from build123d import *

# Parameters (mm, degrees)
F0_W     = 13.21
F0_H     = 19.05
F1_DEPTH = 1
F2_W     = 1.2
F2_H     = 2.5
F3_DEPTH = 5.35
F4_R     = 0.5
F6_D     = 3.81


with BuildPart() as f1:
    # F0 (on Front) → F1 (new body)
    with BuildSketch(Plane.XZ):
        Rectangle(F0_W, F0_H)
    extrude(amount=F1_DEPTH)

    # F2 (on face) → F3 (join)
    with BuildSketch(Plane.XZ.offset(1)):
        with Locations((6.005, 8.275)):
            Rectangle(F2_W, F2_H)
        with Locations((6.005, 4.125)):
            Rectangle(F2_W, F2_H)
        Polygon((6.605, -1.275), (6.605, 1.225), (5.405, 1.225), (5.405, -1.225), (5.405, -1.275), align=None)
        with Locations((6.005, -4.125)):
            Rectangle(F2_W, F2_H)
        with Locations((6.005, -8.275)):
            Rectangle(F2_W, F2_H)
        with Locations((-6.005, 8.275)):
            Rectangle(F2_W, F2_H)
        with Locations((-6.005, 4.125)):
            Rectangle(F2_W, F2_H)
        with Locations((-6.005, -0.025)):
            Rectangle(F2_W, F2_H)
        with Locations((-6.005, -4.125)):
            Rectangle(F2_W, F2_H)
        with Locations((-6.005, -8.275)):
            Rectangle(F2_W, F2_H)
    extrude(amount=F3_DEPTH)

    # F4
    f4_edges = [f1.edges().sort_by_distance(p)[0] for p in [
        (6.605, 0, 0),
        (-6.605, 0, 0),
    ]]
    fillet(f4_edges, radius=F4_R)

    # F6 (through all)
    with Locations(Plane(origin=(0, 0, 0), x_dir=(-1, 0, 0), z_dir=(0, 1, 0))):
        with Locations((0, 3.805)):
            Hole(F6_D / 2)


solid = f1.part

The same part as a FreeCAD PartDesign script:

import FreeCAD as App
import Part
import Sketcher

V = App.Vector


def edges_at(feature, points):
    """Names of the edges that pass closest to the given points."""
    edges = feature.Shape.Edges
    near = lambda p: min(range(len(edges)), key=lambda i: edges[i].distToShape(Part.Vertex(*p))[0])
    return sorted({f"Edge{near(p) + 1}" for p in points})

doc = App.newDocument("Part")
body = doc.addObject("PartDesign::Body", "Body")

# Sketch on XZ plane
sketch1 = doc.addObject("Sketcher::SketchObject", "Sketch")
body.addObject(sketch1)
sketch1.AttachmentSupport = (doc.XZ_Plane, [""])
sketch1.MapMode = "FlatFace"
sketch1.addGeometry(Part.LineSegment(V(-7, 10, 0), V(-7, -10, 0)), False)
sketch1.addGeometry(Part.LineSegment(V(-7, -10, 0), V(7, -10, 0)), False)
sketch1.addGeometry(Part.LineSegment(V(7, -10, 0), V(7, 10, 0)), False)
sketch1.addGeometry(Part.LineSegment(V(7, 10, 0), V(-7, 10, 0)), False)
sketch1.addConstraint(Sketcher.Constraint("Coincident", 0, 2, 1, 1))
sketch1.addConstraint(Sketcher.Constraint("Coincident", 1, 2, 2, 1))
sketch1.addConstraint(Sketcher.Constraint("Coincident", 2, 2, 3, 1))
sketch1.addConstraint(Sketcher.Constraint("Coincident", 3, 2, 0, 1))
sketch1.addConstraint(Sketcher.Constraint("Vertical", 0))
sketch1.addConstraint(Sketcher.Constraint("Horizontal", 1))
sketch1.addConstraint(Sketcher.Constraint("Vertical", 2))
sketch1.addConstraint(Sketcher.Constraint("Horizontal", 3))
sketch1.addConstraint(Sketcher.Constraint("Symmetric", 0, 2, 2, 2, -1, 1))
sketch1.addConstraint(Sketcher.Constraint("DistanceX", 1, 1, 1, 2, 13.21))
sketch1.addConstraint(Sketcher.Constraint("DistanceY", 0, 2, 0, 1, 19.05))
pad1 = doc.addObject("PartDesign::Pad", "Pad")
body.addObject(pad1)
pad1.Profile = sketch1
pad1.Length = 1

# Sketch on XZ plane
sketch2 = doc.addObject("Sketcher::SketchObject", "Sketch001")
body.addObject(sketch2)
sketch2.AttachmentSupport = (doc.XZ_Plane, [""])
sketch2.MapMode = "FlatFace"
sketch2.AttachmentOffset = App.Placement(V(0, 0, 1), App.Rotation())
sketch2.addGeometry(Part.LineSegment(V(5.4, 9.5, 0), V(5.4, 7, 0)), False)
sketch2.addGeometry(Part.LineSegment(V(5.4, 7, 0), V(6.6, 7, 0)), False)
sketch2.addGeometry(Part.LineSegment(V(6.6, 7, 0), V(6.6, 9.5, 0)), False)
sketch2.addGeometry(Part.LineSegment(V(6.6, 9.5, 0), V(5.4, 9.5, 0)), False)
sketch2.addGeometry(Part.LineSegment(V(5.4, 5.4, 0), V(5.4, 2.9, 0)), False)
sketch2.addGeometry(Part.LineSegment(V(5.4, 2.9, 0), V(6.6, 2.9, 0)), False)
sketch2.addGeometry(Part.LineSegment(V(6.6, 2.9, 0), V(6.6, 5.4, 0)), False)
sketch2.addGeometry(Part.LineSegment(V(6.6, 5.4, 0), V(5.4, 5.4, 0)), False)
sketch2.addGeometry(Part.LineSegment(V(6.6, -1.3, 0), V(6.6, 1.2, 0)), False)
sketch2.addGeometry(Part.LineSegment(V(6.6, 1.2, 0), V(5.4, 1.2, 0)), False)
sketch2.addGeometry(Part.LineSegment(V(5.4, 1.2, 0), V(5.4, -1.3, 0)), False)
sketch2.addGeometry(Part.LineSegment(V(5.4, -1.3, 0), V(6.6, -1.3, 0)), False)
sketch2.addGeometry(Part.LineSegment(V(5.4, -2.9, 0), V(5.4, -5.4, 0)), False)
sketch2.addGeometry(Part.LineSegment(V(5.4, -5.4, 0), V(6.6, -5.4, 0)), False)
sketch2.addGeometry(Part.LineSegment(V(6.6, -5.4, 0), V(6.6, -2.9, 0)), False)
sketch2.addGeometry(Part.LineSegment(V(6.6, -2.9, 0), V(5.4, -2.9, 0)), False)
sketch2.addGeometry(Part.LineSegment(V(5.4, -7, 0), V(5.4, -9.5, 0)), False)
sketch2.addGeometry(Part.LineSegment(V(5.4, -9.5, 0), V(6.6, -9.5, 0)), False)
sketch2.addGeometry(Part.LineSegment(V(6.6, -9.5, 0), V(6.6, -7, 0)), False)
sketch2.addGeometry(Part.LineSegment(V(6.6, -7, 0), V(5.4, -7, 0)), False)
sketch2.addGeometry(Part.LineSegment(V(-6.6, 9.5, 0), V(-6.6, 7, 0)), False)
sketch2.addGeometry(Part.LineSegment(V(-6.6, 7, 0), V(-5.4, 7, 0)), False)
sketch2.addGeometry(Part.LineSegment(V(-5.4, 7, 0), V(-5.4, 9.5, 0)), False)
sketch2.addGeometry(Part.LineSegment(V(-5.4, 9.5, 0), V(-6.6, 9.5, 0)), False)
sketch2.addGeometry(Part.LineSegment(V(-6.6, 5.4, 0), V(-6.6, 2.9, 0)), False)
sketch2.addGeometry(Part.LineSegment(V(-6.6, 2.9, 0), V(-5.4, 2.9, 0)), False)
sketch2.addGeometry(Part.LineSegment(V(-5.4, 2.9, 0), V(-5.4, 5.4, 0)), False)
sketch2.addGeometry(Part.LineSegment(V(-5.4, 5.4, 0), V(-6.6, 5.4, 0)), False)
sketch2.addGeometry(Part.LineSegment(V(-6.6, 1.2, 0), V(-6.6, -1.3, 0)), False)
sketch2.addGeometry(Part.LineSegment(V(-6.6, -1.3, 0), V(-5.4, -1.3, 0)), False)
sketch2.addGeometry(Part.LineSegment(V(-5.4, -1.3, 0), V(-5.4, 1.2, 0)), False)
sketch2.addGeometry(Part.LineSegment(V(-5.4, 1.2, 0), V(-6.6, 1.2, 0)), False)
sketch2.addGeometry(Part.LineSegment(V(-6.6, -2.9, 0), V(-6.6, -5.4, 0)), False)
sketch2.addGeometry(Part.LineSegment(V(-6.6, -5.4, 0), V(-5.4, -5.4, 0)), False)
sketch2.addGeometry(Part.LineSegment(V(-5.4, -5.4, 0), V(-5.4, -2.9, 0)), False)
sketch2.addGeometry(Part.LineSegment(V(-5.4, -2.9, 0), V(-6.6, -2.9, 0)), False)
sketch2.addGeometry(Part.LineSegment(V(-6.6, -7, 0), V(-6.6, -9.5, 0)), False)
sketch2.addGeometry(Part.LineSegment(V(-6.6, -9.5, 0), V(-5.4, -9.5, 0)), False)
sketch2.addGeometry(Part.LineSegment(V(-5.4, -9.5, 0), V(-5.4, -7, 0)), False)
sketch2.addGeometry(Part.LineSegment(V(-5.4, -7, 0), V(-6.6, -7, 0)), False)
sketch2.addConstraint(Sketcher.Constraint("Coincident", 0, 2, 1, 1))
sketch2.addConstraint(Sketcher.Constraint("Coincident", 1, 2, 2, 1))
sketch2.addConstraint(Sketcher.Constraint("Coincident", 2, 2, 3, 1))
sketch2.addConstraint(Sketcher.Constraint("Coincident", 3, 2, 0, 1))
sketch2.addConstraint(Sketcher.Constraint("Coincident", 4, 2, 5, 1))
sketch2.addConstraint(Sketcher.Constraint("Coincident", 5, 2, 6, 1))
sketch2.addConstraint(Sketcher.Constraint("Coincident", 6, 2, 7, 1))
sketch2.addConstraint(Sketcher.Constraint("Coincident", 7, 2, 4, 1))
sketch2.addConstraint(Sketcher.Constraint("Coincident", 8, 2, 9, 1))
sketch2.addConstraint(Sketcher.Constraint("Coincident", 9, 2, 10, 1))
sketch2.addConstraint(Sketcher.Constraint("Coincident", 10, 2, 11, 1))
sketch2.addConstraint(Sketcher.Constraint("Coincident", 11, 2, 8, 1))
sketch2.addConstraint(Sketcher.Constraint("Coincident", 12, 2, 13, 1))
sketch2.addConstraint(Sketcher.Constraint("Coincident", 13, 2, 14, 1))
sketch2.addConstraint(Sketcher.Constraint("Coincident", 14, 2, 15, 1))
sketch2.addConstraint(Sketcher.Constraint("Coincident", 15, 2, 12, 1))
sketch2.addConstraint(Sketcher.Constraint("Coincident", 16, 2, 17, 1))
sketch2.addConstraint(Sketcher.Constraint("Coincident", 17, 2, 18, 1))
sketch2.addConstraint(Sketcher.Constraint("Coincident", 18, 2, 19, 1))
sketch2.addConstraint(Sketcher.Constraint("Coincident", 19, 2, 16, 1))
sketch2.addConstraint(Sketcher.Constraint("Coincident", 20, 2, 21, 1))
sketch2.addConstraint(Sketcher.Constraint("Coincident", 21, 2, 22, 1))
sketch2.addConstraint(Sketcher.Constraint("Coincident", 22, 2, 23, 1))
sketch2.addConstraint(Sketcher.Constraint("Coincident", 23, 2, 20, 1))
sketch2.addConstraint(Sketcher.Constraint("Coincident", 24, 2, 25, 1))
sketch2.addConstraint(Sketcher.Constraint("Coincident", 25, 2, 26, 1))
sketch2.addConstraint(Sketcher.Constraint("Coincident", 26, 2, 27, 1))
sketch2.addConstraint(Sketcher.Constraint("Coincident", 27, 2, 24, 1))
sketch2.addConstraint(Sketcher.Constraint("Coincident", 28, 2, 29, 1))
sketch2.addConstraint(Sketcher.Constraint("Coincident", 29, 2, 30, 1))
sketch2.addConstraint(Sketcher.Constraint("Coincident", 30, 2, 31, 1))
sketch2.addConstraint(Sketcher.Constraint("Coincident", 31, 2, 28, 1))
sketch2.addConstraint(Sketcher.Constraint("Coincident", 32, 2, 33, 1))
sketch2.addConstraint(Sketcher.Constraint("Coincident", 33, 2, 34, 1))
sketch2.addConstraint(Sketcher.Constraint("Coincident", 34, 2, 35, 1))
sketch2.addConstraint(Sketcher.Constraint("Coincident", 35, 2, 32, 1))
sketch2.addConstraint(Sketcher.Constraint("Coincident", 36, 2, 37, 1))
sketch2.addConstraint(Sketcher.Constraint("Coincident", 37, 2, 38, 1))
sketch2.addConstraint(Sketcher.Constraint("Coincident", 38, 2, 39, 1))
sketch2.addConstraint(Sketcher.Constraint("Coincident", 39, 2, 36, 1))
sketch2.addConstraint(Sketcher.Constraint("Vertical", 0))
sketch2.addConstraint(Sketcher.Constraint("Horizontal", 1))
sketch2.addConstraint(Sketcher.Constraint("Vertical", 2))
sketch2.addConstraint(Sketcher.Constraint("Horizontal", 3))
sketch2.addConstraint(Sketcher.Constraint("Vertical", 4))
sketch2.addConstraint(Sketcher.Constraint("Horizontal", 5))
sketch2.addConstraint(Sketcher.Constraint("Vertical", 6))
sketch2.addConstraint(Sketcher.Constraint("Horizontal", 7))
sketch2.addConstraint(Sketcher.Constraint("Vertical", 8))
sketch2.addConstraint(Sketcher.Constraint("Horizontal", 9))
sketch2.addConstraint(Sketcher.Constraint("Vertical", 10))
sketch2.addConstraint(Sketcher.Constraint("Horizontal", 11))
sketch2.addConstraint(Sketcher.Constraint("Vertical", 12))
sketch2.addConstraint(Sketcher.Constraint("Horizontal", 13))
sketch2.addConstraint(Sketcher.Constraint("Vertical", 14))
sketch2.addConstraint(Sketcher.Constraint("Horizontal", 15))
sketch2.addConstraint(Sketcher.Constraint("Vertical", 16))
sketch2.addConstraint(Sketcher.Constraint("Horizontal", 17))
sketch2.addConstraint(Sketcher.Constraint("Vertical", 18))
sketch2.addConstraint(Sketcher.Constraint("Horizontal", 19))
sketch2.addConstraint(Sketcher.Constraint("Vertical", 20))
sketch2.addConstraint(Sketcher.Constraint("Horizontal", 21))
sketch2.addConstraint(Sketcher.Constraint("Vertical", 22))
sketch2.addConstraint(Sketcher.Constraint("Horizontal", 23))
sketch2.addConstraint(Sketcher.Constraint("Vertical", 24))
sketch2.addConstraint(Sketcher.Constraint("Horizontal", 25))
sketch2.addConstraint(Sketcher.Constraint("Vertical", 26))
sketch2.addConstraint(Sketcher.Constraint("Horizontal", 27))
sketch2.addConstraint(Sketcher.Constraint("Vertical", 28))
sketch2.addConstraint(Sketcher.Constraint("Horizontal", 29))
sketch2.addConstraint(Sketcher.Constraint("Vertical", 30))
sketch2.addConstraint(Sketcher.Constraint("Horizontal", 31))
sketch2.addConstraint(Sketcher.Constraint("Vertical", 32))
sketch2.addConstraint(Sketcher.Constraint("Horizontal", 33))
sketch2.addConstraint(Sketcher.Constraint("Vertical", 34))
sketch2.addConstraint(Sketcher.Constraint("Horizontal", 35))
sketch2.addConstraint(Sketcher.Constraint("Vertical", 36))
sketch2.addConstraint(Sketcher.Constraint("Horizontal", 37))
sketch2.addConstraint(Sketcher.Constraint("Vertical", 38))
sketch2.addConstraint(Sketcher.Constraint("Horizontal", 39))
sketch2.addConstraint(Sketcher.Constraint("Symmetric", 18, 2, 20, 2, -1, 1))
sketch2.addConstraint(Sketcher.Constraint("Symmetric", 16, 2, 22, 2, -1, 1))
sketch2.addConstraint(Sketcher.Constraint("Symmetric", 14, 2, 24, 2, -1, 1))
sketch2.addConstraint(Sketcher.Constraint("Symmetric", 12, 2, 26, 2, -1, 1))
sketch2.addConstraint(Sketcher.Constraint("Symmetric", 6, 2, 32, 2, -1, 1))
sketch2.addConstraint(Sketcher.Constraint("Symmetric", 4, 2, 34, 2, -1, 1))
sketch2.addConstraint(Sketcher.Constraint("Symmetric", 2, 2, 36, 2, -1, 1))
sketch2.addConstraint(Sketcher.Constraint("Symmetric", 0, 2, 38, 2, -1, 1))
sketch2.addConstraint(Sketcher.Constraint("Symmetric", 1, 2, 20, 2, -2))
sketch2.addConstraint(Sketcher.Constraint("Symmetric", 3, 2, 22, 2, -2))
sketch2.addConstraint(Sketcher.Constraint("Symmetric", 5, 2, 24, 2, -2))
sketch2.addConstraint(Sketcher.Constraint("Symmetric", 7, 2, 26, 2, -2))
sketch2.addConstraint(Sketcher.Constraint("Symmetric", 11, 2, 28, 2, -2))
sketch2.addConstraint(Sketcher.Constraint("Symmetric", 9, 2, 30, 2, -2))
sketch2.addConstraint(Sketcher.Constraint("Vertical", 3, 2, 4, 2))
sketch2.addConstraint(Sketcher.Constraint("Vertical", 2, 2, 5, 2))
sketch2.addConstraint(Sketcher.Constraint("Vertical", 6, 2, 8, 2))
sketch2.addConstraint(Sketcher.Constraint("Vertical", 7, 2, 9, 2))
sketch2.addConstraint(Sketcher.Constraint("Equal", 2, 4))
sketch2.addConstraint(Sketcher.Constraint("Equal", 6, 8))
sketch2.addConstraint(Sketcher.Constraint("DistanceX", 1, 1, 1, 2, 1.2))
sketch2.addConstraint(Sketcher.Constraint("DistanceY", 0, 2, 0, 1, 2.5))
sketch2.addConstraint(Sketcher.Constraint("DistanceY", 8, 2, 1, 2, 5.8))
sketch2.addConstraint(Sketcher.Constraint("DistanceY", 12, 2, 10, 2, 4.1))
sketch2.addConstraint(Sketcher.Constraint("DistanceY", 4, 2, 0, 2, 4.15))
sketch2.addConstraint(Sketcher.Constraint("DistanceX", 20, 2, 0, 2, 12.01))
pad2 = doc.addObject("PartDesign::Pad", "Pad001")
body.addObject(pad2)
pad2.Profile = sketch2
pad2.Length = 5.35
doc.recompute()

fillet = doc.addObject("PartDesign::Fillet", "Fillet")
body.addObject(fillet)
fillet.Base = (pad2, edges_at(pad2, [(6.605, 0, 0), (-6.605, 0, 0)]))
fillet.Radius = 0.5

# Sketch on XZ plane
sketch3 = doc.addObject("Sketcher::SketchObject", "Sketch002")
body.addObject(sketch3)
sketch3.AttachmentSupport = (doc.XZ_Plane, [""])
sketch3.MapMode = "FlatFace"
sketch3.addGeometry(Part.Circle(V(0, 3.8, 0), V(0, 0, 1), 1.9), False)
sketch3.addConstraint(Sketcher.Constraint("PointOnObject", 0, 3, -2))
sketch3.addConstraint(Sketcher.Constraint("Diameter", 0, 3.81))
sketch3.addConstraint(Sketcher.Constraint("DistanceY", -1, 1, 0, 3, 3.805))
doc.recompute()
hole = doc.addObject("PartDesign::Hole", "Hole")
body.addObject(hole)
hole.Profile = sketch3
hole.ThreadType = "None"
hole.Diameter = 3.81
hole.DepthType = "ThroughAll"
hole.Reversed = True

doc.recompute()
